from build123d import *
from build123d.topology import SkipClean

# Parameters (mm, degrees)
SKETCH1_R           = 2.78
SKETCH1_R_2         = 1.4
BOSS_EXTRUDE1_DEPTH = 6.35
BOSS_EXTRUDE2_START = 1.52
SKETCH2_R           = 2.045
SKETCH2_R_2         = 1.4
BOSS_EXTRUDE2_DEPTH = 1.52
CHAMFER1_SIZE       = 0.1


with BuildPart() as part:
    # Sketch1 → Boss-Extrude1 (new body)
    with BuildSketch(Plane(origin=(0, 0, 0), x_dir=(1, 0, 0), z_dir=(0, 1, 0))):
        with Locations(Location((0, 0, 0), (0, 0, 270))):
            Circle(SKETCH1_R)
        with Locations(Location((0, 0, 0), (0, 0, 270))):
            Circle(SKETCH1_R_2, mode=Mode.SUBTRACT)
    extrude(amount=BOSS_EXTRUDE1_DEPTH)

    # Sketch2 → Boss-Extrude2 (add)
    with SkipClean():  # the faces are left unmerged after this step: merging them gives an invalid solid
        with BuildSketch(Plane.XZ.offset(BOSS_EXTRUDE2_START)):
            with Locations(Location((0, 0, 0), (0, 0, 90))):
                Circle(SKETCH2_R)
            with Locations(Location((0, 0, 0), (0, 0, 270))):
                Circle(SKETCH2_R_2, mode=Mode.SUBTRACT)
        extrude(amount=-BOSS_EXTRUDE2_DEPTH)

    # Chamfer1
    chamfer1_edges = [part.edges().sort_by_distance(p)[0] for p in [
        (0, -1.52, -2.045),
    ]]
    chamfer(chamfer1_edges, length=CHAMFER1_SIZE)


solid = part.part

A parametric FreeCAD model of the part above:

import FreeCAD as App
import Part
import Sketcher
from FreeCAD import Vector


def edges_at(feature, points):
    """Names of the edges that pass closest to the given points."""
    edges = feature.Shape.Edges
    near = lambda p: min(range(len(edges)), key=lambda i: edges[i].distToShape(Part.Vertex(*p))[0])
    return sorted({f"Edge{near(p) + 1}" for p in points})

doc = App.newDocument("Part")
body = doc.addObject("PartDesign::Body", "Body")

sketch1 = body.newObject("Sketcher::SketchObject", "Sketch")
sketch1.AttachmentSupport = (doc.getObject("XZ_Plane"), [""])
sketch1.MapMode = "FlatFace"
sketch1.addGeometry([
    Part.Circle(Vector(0, 0, 0), Vector(0, 0, 1), 2.8),
    Part.Circle(Vector(0, 0, 0), Vector(0, 0, 1), 1.4),
], False)
sketch1.addConstraint([
    Sketcher.Constraint("Coincident", 0, 3, -1, 1),
    Sketcher.Constraint("Coincident", 1, 3, -1, 1),
    Sketcher.Constraint("Diameter", 1, 2.8),
    Sketcher.Constraint("Diameter", 0, 5.56),
])
pad1 = body.newObject("PartDesign::Pad", "Pad")
pad1.Profile = sketch1
pad1.Length = 6.35
pad1.Reversed = True

sketch2 = body.newObject("Sketcher::SketchObject", "Sketch001")
sketch2.AttachmentSupport = (doc.getObject("XZ_Plane"), [""])
sketch2.MapMode = "FlatFace"
sketch2.AttachmentOffset = App.Placement(Vector(0, 0, 1.52), App.Rotation())
sketch2.addGeometry([
    Part.Circle(Vector(0, 0, 0), Vector(0, 0, 1), 2),
    Part.Circle(Vector(0, 0, 0), Vector(0, 0, 1), 1.4),
], False)
sketch2.addConstraint([
    Sketcher.Constraint("Coincident", 0, 3, -1, 1),
    Sketcher.Constraint("Coincident", 1, 3, -1, 1),
    Sketcher.Constraint("Diameter", 1, 2.8),
    Sketcher.Constraint("Diameter", 0, 4.09),
])
pad2 = body.newObject("PartDesign::Pad", "Pad001")
pad2.Profile = sketch2
pad2.Length = 1.52
pad2.Reversed = True
doc.recompute()

chamfer = body.newObject("PartDesign::Chamfer", "Chamfer")
chamfer.Base = (pad2, edges_at(pad2, [(0, -1.52, -2.045)]))
chamfer.Size = 0.1

doc.recompute()
